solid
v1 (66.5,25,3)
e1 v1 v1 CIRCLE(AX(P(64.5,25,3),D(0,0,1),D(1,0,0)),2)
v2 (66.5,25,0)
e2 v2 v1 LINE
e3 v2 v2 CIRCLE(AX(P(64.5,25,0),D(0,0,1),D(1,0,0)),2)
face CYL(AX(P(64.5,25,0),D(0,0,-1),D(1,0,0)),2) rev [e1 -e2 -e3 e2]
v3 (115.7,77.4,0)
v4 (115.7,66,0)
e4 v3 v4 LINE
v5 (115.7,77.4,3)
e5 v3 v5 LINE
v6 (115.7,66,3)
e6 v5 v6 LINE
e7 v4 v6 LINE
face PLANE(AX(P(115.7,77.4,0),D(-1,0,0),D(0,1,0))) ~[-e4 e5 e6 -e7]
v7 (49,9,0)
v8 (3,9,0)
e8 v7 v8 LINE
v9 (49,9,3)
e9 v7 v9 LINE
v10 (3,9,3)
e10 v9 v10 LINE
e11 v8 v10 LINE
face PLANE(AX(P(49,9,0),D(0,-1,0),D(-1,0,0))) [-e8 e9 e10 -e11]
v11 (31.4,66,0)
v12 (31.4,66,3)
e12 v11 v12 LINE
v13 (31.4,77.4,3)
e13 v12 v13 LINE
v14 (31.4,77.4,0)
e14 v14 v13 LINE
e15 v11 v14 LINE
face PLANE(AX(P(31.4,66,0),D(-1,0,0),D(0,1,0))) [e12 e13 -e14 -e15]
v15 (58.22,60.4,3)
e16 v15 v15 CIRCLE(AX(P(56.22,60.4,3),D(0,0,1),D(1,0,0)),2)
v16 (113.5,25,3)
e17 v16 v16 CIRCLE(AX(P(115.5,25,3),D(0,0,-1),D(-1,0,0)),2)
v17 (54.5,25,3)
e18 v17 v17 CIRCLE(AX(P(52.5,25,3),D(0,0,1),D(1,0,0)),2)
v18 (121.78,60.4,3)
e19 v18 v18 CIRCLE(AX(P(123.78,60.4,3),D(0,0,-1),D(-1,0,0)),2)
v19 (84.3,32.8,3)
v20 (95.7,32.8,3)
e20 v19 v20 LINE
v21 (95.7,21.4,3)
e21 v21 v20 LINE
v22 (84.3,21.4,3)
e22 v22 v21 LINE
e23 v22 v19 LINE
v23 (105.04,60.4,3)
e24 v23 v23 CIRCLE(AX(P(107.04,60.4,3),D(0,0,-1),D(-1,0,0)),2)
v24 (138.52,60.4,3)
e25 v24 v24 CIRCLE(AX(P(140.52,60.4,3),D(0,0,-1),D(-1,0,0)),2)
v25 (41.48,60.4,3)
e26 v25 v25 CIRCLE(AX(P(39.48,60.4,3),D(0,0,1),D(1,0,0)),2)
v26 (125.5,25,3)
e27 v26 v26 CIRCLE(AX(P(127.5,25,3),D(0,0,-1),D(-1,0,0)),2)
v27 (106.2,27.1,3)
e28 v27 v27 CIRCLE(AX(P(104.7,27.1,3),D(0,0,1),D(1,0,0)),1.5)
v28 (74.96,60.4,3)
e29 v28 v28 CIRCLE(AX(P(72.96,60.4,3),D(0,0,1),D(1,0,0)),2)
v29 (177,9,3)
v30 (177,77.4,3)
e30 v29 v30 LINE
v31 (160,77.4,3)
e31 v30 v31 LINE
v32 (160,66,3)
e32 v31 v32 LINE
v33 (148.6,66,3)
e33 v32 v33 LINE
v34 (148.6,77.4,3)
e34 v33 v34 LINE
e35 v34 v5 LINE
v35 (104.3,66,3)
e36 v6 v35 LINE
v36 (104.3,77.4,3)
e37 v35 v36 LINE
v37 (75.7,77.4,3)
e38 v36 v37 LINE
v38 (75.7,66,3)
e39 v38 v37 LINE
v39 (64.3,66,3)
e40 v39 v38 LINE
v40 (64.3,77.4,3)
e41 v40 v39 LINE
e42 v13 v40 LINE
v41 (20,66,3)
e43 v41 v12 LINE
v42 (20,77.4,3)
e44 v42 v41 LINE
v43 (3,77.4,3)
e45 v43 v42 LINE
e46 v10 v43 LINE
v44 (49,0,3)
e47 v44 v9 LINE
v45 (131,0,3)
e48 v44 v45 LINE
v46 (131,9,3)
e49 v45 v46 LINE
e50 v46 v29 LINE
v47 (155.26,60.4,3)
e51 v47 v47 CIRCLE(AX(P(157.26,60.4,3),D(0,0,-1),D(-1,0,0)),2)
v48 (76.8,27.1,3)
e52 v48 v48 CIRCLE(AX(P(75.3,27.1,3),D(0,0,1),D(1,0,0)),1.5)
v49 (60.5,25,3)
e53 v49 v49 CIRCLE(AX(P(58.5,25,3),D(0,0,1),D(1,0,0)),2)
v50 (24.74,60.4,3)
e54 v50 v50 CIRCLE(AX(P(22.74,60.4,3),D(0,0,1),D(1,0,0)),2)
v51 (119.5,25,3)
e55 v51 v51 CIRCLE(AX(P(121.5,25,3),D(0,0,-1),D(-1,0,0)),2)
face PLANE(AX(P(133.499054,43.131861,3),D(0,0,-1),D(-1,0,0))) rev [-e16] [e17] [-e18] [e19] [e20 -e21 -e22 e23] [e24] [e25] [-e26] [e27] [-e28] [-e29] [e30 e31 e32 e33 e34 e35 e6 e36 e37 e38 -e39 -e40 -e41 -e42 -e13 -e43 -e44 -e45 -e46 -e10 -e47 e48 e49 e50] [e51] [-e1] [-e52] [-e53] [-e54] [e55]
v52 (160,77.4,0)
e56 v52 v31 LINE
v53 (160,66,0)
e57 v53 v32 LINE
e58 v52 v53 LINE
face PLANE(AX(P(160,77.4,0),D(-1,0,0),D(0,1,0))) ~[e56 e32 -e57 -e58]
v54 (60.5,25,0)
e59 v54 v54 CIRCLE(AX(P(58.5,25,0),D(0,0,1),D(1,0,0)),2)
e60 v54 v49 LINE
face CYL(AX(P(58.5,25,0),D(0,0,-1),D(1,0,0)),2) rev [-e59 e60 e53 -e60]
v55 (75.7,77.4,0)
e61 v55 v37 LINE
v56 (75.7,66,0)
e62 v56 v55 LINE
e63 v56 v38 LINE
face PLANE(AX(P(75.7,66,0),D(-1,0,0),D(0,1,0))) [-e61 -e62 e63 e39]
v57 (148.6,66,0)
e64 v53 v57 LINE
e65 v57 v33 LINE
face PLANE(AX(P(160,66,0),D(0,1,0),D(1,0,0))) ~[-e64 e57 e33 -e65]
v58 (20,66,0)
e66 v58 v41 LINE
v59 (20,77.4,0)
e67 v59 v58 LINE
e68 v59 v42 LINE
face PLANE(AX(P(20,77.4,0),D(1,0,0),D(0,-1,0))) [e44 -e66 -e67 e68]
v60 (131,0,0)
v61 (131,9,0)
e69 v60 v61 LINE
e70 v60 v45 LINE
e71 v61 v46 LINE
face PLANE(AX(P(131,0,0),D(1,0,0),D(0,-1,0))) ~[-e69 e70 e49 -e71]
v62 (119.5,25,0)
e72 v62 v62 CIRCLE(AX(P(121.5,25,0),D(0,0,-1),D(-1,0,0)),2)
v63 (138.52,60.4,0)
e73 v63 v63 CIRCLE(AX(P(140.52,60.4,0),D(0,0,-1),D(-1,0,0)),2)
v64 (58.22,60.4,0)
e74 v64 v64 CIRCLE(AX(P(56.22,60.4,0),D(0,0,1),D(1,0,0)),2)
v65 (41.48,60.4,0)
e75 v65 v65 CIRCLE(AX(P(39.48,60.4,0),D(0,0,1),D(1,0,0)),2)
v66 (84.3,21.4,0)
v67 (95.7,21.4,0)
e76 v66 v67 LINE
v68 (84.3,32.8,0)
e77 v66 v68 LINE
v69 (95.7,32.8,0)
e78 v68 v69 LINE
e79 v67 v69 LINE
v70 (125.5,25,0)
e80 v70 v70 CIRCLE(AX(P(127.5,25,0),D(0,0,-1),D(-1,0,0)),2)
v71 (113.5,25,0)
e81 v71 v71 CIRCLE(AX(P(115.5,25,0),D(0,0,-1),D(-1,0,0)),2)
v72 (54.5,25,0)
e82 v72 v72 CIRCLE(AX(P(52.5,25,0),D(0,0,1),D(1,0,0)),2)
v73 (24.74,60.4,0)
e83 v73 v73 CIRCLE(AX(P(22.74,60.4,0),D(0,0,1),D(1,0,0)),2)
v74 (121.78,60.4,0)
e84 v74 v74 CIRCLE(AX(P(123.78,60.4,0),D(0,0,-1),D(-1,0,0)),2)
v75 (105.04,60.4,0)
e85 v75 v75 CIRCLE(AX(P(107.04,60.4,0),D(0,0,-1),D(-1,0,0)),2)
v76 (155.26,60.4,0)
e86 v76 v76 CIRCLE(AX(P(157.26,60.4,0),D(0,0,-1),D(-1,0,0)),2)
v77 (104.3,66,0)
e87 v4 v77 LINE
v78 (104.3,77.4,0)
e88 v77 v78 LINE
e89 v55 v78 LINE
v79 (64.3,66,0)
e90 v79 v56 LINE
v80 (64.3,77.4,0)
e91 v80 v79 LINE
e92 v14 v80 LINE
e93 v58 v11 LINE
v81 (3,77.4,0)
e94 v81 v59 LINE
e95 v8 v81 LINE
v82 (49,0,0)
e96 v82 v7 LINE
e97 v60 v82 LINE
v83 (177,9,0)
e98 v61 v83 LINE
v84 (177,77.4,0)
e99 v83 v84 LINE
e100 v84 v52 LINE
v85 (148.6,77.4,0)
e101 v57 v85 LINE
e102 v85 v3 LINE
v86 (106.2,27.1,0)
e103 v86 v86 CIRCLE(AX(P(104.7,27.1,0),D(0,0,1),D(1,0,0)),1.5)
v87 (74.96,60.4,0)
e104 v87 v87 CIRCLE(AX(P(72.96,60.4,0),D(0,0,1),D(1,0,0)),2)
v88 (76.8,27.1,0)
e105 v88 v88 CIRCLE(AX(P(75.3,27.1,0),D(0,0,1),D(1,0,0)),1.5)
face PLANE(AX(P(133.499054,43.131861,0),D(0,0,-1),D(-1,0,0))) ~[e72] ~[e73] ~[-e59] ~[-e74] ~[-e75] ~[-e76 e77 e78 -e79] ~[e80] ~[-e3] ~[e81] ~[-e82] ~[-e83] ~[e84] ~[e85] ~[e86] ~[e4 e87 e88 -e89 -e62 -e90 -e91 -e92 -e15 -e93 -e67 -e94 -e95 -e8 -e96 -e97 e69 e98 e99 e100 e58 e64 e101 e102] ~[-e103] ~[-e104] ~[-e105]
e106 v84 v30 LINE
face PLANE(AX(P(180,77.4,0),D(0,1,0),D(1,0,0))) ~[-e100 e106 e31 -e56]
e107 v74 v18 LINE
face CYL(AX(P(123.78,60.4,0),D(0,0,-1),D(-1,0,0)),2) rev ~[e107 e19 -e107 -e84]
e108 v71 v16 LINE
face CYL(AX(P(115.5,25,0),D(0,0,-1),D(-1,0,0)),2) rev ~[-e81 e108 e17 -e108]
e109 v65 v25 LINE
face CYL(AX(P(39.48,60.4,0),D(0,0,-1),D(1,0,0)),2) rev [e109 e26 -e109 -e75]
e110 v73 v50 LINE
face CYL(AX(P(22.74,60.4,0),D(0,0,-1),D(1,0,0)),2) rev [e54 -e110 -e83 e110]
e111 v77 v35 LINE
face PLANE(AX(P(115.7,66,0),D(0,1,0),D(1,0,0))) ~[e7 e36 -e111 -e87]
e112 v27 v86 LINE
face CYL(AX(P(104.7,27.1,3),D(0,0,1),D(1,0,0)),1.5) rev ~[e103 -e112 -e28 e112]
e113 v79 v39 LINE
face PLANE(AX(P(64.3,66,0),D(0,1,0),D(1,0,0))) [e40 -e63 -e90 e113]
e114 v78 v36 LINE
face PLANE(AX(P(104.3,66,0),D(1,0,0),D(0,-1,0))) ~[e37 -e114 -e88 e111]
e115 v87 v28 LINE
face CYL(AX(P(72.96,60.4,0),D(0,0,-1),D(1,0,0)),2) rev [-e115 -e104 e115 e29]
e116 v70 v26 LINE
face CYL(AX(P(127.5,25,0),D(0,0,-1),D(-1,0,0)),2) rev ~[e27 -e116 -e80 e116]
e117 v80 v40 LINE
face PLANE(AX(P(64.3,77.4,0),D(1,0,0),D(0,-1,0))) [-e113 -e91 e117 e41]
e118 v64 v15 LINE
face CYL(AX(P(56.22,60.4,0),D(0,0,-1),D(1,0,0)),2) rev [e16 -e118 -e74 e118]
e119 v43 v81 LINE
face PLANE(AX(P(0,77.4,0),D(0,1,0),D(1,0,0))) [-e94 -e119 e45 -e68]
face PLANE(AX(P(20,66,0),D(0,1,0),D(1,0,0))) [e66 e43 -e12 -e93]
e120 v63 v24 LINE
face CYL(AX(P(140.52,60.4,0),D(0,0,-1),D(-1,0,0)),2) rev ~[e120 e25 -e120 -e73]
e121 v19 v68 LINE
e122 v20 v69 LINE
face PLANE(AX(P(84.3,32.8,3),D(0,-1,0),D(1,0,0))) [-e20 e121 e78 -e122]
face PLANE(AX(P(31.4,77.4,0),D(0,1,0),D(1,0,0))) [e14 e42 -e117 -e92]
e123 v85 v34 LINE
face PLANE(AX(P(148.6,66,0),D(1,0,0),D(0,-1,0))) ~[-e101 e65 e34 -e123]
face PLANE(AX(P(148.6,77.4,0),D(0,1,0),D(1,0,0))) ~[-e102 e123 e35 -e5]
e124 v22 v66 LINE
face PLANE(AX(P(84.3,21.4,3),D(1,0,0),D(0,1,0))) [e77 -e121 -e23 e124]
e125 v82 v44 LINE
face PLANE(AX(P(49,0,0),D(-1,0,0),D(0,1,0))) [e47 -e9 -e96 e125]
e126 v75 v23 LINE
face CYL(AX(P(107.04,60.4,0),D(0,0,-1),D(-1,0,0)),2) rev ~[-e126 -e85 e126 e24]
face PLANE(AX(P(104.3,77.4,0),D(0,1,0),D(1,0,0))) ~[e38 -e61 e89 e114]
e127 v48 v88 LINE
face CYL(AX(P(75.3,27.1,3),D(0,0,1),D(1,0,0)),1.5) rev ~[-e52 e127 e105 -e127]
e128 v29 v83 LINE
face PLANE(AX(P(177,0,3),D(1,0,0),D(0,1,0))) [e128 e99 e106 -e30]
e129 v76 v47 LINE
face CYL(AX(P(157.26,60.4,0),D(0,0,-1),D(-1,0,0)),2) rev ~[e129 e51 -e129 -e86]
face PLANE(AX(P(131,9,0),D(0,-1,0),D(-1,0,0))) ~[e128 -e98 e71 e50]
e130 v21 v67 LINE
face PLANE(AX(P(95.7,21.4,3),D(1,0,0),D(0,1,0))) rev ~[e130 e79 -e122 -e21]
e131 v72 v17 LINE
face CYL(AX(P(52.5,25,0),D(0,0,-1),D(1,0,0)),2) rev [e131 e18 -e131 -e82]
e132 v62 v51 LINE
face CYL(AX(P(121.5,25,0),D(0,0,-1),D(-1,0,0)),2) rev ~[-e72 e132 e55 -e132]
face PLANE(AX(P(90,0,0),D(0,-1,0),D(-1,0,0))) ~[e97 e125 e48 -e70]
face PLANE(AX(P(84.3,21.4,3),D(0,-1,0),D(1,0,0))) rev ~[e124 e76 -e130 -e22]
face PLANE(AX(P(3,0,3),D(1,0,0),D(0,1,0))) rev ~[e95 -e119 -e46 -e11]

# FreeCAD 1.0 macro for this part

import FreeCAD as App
import Part
import Sketcher
from FreeCAD import Vector
Q = App.Units.Quantity

doc = App.newDocument("Part")
body = doc.addObject("PartDesign::Body", "Body")

sketch1 = body.newObject("Sketcher::SketchObject", "Sketch")
sketch1.AttachmentSupport = (doc.getObject("XY_Plane"), [""])
sketch1.MapMode = "FlatFace"
sketch1.addGeometry([
    Part.LineSegment(Vector(20, 77.4, 0), Vector(0, 77.4, 0)),
    Part.LineSegment(Vector(0, 77.4, 0), Vector(0, 9, 0)),
    Part.LineSegment(Vector(0, 9, 0), Vector(49, 9, 0)),
    Part.LineSegment(Vector(49, 9, 0), Vector(49, 0, 0)),
    Part.LineSegment(Vector(49, 0, 0), Vector(90, 0, 0)),
    Part.LineSegment(Vector(90, 0, 0), Vector(90, 77.4, 0)),
    Part.LineSegment(Vector(90, 77.4, 0), Vector(75.7, 77.4, 0)),
    Part.LineSegment(Vector(75.7, 77.4, 0), Vector(75.7, 66, 0)),
    Part.LineSegment(Vector(75.7, 66, 0), Vector(64.3, 66, 0)),
    Part.LineSegment(Vector(64.3, 66, 0), Vector(64.3, 77.4, 0)),
    Part.LineSegment(Vector(64.3, 77.4, 0), Vector(31.4, 77.4, 0)),
    Part.LineSegment(Vector(31.4, 77.4, 0), Vector(31.4, 66, 0)),
    Part.LineSegment(Vector(31.4, 66, 0), Vector(20, 66, 0)),
    Part.LineSegment(Vector(20, 66, 0), Vector(20, 77.4, 0)),
    Part.Circle(Vector(64.5, 25, 0), Vector(0, 0, 1), 2),
    Part.Circle(Vector(58.5, 25, 0), Vector(0, 0, 1), 2),
    Part.Circle(Vector(52.5, 25, 0), Vector(0, 0, 1), 2),
    Part.Circle(Vector(73, 60.4, 0), Vector(0, 0, 1), 2),
    Part.Circle(Vector(56.2, 60.4, 0), Vector(0, 0, 1), 2),
    Part.Circle(Vector(39.5, 60.4, 0), Vector(0, 0, 1), 2),
    Part.Circle(Vector(22.7, 60.4, 0), Vector(0, 0, 1), 2),
], False)
sketch1.addConstraint([
    Sketcher.Constraint("Coincident", 0, 2, 1, 1),
    Sketcher.Constraint("Coincident", 1, 2, 2, 1),
    Sketcher.Constraint("Coincident", 2, 2, 3, 1),
    Sketcher.Constraint("Coincident", 3, 2, 4, 1),
    Sketcher.Constraint("Coincident", 4, 2, 5, 1),
    Sketcher.Constraint("Coincident", 5, 2, 6, 1),
    Sketcher.Constraint("Coincident", 6, 2, 7, 1),
    Sketcher.Constraint("Coincident", 7, 2, 8, 1),
    Sketcher.Constraint("Coincident", 8, 2, 9, 1),
    Sketcher.Constraint("Coincident", 9, 2, 10, 1),
    Sketcher.Constraint("Coincident", 10, 2, 11, 1),
    Sketcher.Constraint("Coincident", 11, 2, 12, 1),
    Sketcher.Constraint("Coincident", 12, 2, 13, 1),
    Sketcher.Constraint("Coincident", 13, 2, 0, 1),
    Sketcher.Constraint("Horizontal", 0),
    Sketcher.Constraint("Vertical", 1),
    Sketcher.Constraint("Horizontal", 2),
    Sketcher.Constraint("Vertical", 3),
    Sketcher.Constraint("Horizontal", 4),
    Sketcher.Constraint("Vertical", 5),
    Sketcher.Constraint("Horizontal", 6),
    Sketcher.Constraint("Vertical", 7),
    Sketcher.Constraint("Horizontal", 8),
    Sketcher.Constraint("Vertical", 9),
    Sketcher.Constraint("Horizontal", 10),
    Sketcher.Constraint("Vertical", 11),
    Sketcher.Constraint("Horizontal", 12),
    Sketcher.Constraint("Vertical", 13),
    Sketcher.Constraint("Equal", 14, 15),
    Sketcher.Constraint("Equal", 15, 16),
    Sketcher.Constraint("Equal", 16, 17),
    Sketcher.Constraint("Equal", 17, 18),
    Sketcher.Constraint("Equal", 18, 19),
    Sketcher.Constraint("Equal", 19, 20),
    Sketcher.Constraint("PointOnObject", 0, 2, -2),
    Sketcher.Constraint("PointOnObject", 3, 2, -1),
    Sketcher.Constraint("Horizontal", 14, 3, 15, 3),
    Sketcher.Constraint("Horizontal", 15, 3, 16, 3),
    Sketcher.Constraint("Horizontal", 17, 3, 18, 3),
    Sketcher.Constraint("Horizontal", 18, 3, 19, 3),
    Sketcher.Constraint("Horizontal", 19, 3, 20, 3),
    Sketcher.Constraint("Horizontal", 0, 2, 5, 2),
    Sketcher.Constraint("Horizontal", 6, 2, 9, 2),
    Sketcher.Constraint("Horizontal", 8, 2, 11, 2),
    Sketcher.Constraint("Equal", 8, 12),
    Sketcher.Constraint("Equal", 12, 7),
    Sketcher.Constraint("Diameter", 14, Q("4 mm")),
    Sketcher.Constraint("DistanceX", 0, 2, 0, 1, Q("20 mm")),
    Sketcher.Constraint("DistanceX", 2, 1, 2, 2, Q("49 mm")),
    Sketcher.Constraint("DistanceX", 4, 1, 4, 2, Q("41 mm")),
    Sketcher.Constraint("DistanceY", 3, 2, 3, 1, Q("9 mm")),
    Sketcher.Constraint("DistanceX", 6, 2, 6, 1, Q("14.3 mm")),
    Sketcher.Constraint("DistanceX", 8, 2, 8, 1, Q("11.4 mm")),
    Sketcher.Constraint("DistanceY", 1, 2, 1, 1, Q("68.4 mm")),
    Sketcher.Constraint("DistanceY", -1, 1, 14, 3, Q("25 mm")),
    Sketcher.Constraint("DistanceX", 15, 3, 14, 3, Q("6 mm")),
    Sketcher.Constraint("DistanceX", 16, 3, 15, 3, Q("6 mm")),
    Sketcher.Constraint("DistanceY", 20, 3, 0, 2, Q("17 mm")),
    Sketcher.Constraint("DistanceX", -1, 1, 14, 3, Q("64.5 mm")),
    Sketcher.Constraint("DistanceX", -1, 1, 17, 3, Q("72.96 mm")),
    Sketcher.Constraint("DistanceX", -1, 1, 18, 3, Q("56.22 mm")),
    Sketcher.Constraint("DistanceX", -1, 1, 19, 3, Q("39.48 mm")),
    Sketcher.Constraint("DistanceX", -1, 1, 20, 3, Q("22.74 mm")),
])
pad1 = body.newObject("PartDesign::Pad", "Pad")
pad1.Profile = sketch1
pad1.Length = 3
doc.recompute()

datumplane = body.newObject("PartDesign::Plane", "DatumPlane")
datumplane.AttachmentSupport = (doc.getObject("YZ_Plane"), [""])
datumplane.MapMode = "FlatFace"
datumplane.AttachmentOffset = App.Placement(Vector(0, 0, 90), App.Rotation())
mirrored = body.newObject("PartDesign::Mirrored", "Mirrored")
mirrored.Originals = [pad1]
mirrored.MirrorPlane = (datumplane, [""])
body.Tip = mirrored

sketch2 = body.newObject("Sketcher::SketchObject", "Sketch001")
sketch2.AttachmentSupport = (doc.getObject("XY_Plane"), [""])
sketch2.MapMode = "FlatFace"
sketch2.AttachmentOffset = App.Placement(Vector(0, 0, 3), App.Rotation())
sketch2.addGeometry([
    Part.Circle(Vector(104.7, 27.1, 0), Vector(0, 0, 1), 1.5),
    Part.Circle(Vector(75.3, 27.1, 0), Vector(0, 0, 1), 1.5),
    Part.LineSegment(Vector(0, 90.1, 0), Vector(0, 0, 0)),
    Part.LineSegment(Vector(0, 0, 0), Vector(3, 0, 0)),
    Part.LineSegment(Vector(3, 0, 0), Vector(3, 90.1, 0)),
    Part.LineSegment(Vector(3, 90.1, 0), Vector(0, 90.1, 0)),
    Part.LineSegment(Vector(177, 90.9, 0), Vector(177, 0, 0)),
    Part.LineSegment(Vector(177, 0, 0), Vector(180, 0, 0)),
    Part.LineSegment(Vector(180, 0, 0), Vector(180, 90.9, 0)),
    Part.LineSegment(Vector(180, 90.9, 0), Vector(177, 90.9, 0)),
    Part.LineSegment(Vector(84.3, 32.8, 0), Vector(84.3, 21.4, 0)),
    Part.LineSegment(Vector(84.3, 21.4, 0), Vector(95.7, 21.4, 0)),
    Part.LineSegment(Vector(95.7, 21.4, 0), Vector(95.7, 32.8, 0)),
    Part.LineSegment(Vector(95.7, 32.8, 0), Vector(84.3, 32.8, 0)),
], False)
sketch2.addConstraint([
    Sketcher.Constraint("Coincident", 2, 2, 3, 1),
    Sketcher.Constraint("Coincident", 3, 2, 4, 1),
    Sketcher.Constraint("Coincident", 4, 2, 5, 1),
    Sketcher.Constraint("Coincident", 5, 2, 2, 1),
    Sketcher.Constraint("Coincident", 6, 2, 7, 1),
    Sketcher.Constraint("Coincident", 7, 2, 8, 1),
    Sketcher.Constraint("Coincident", 8, 2, 9, 1),
    Sketcher.Constraint("Coincident", 9, 2, 6, 1),
    Sketcher.Constraint("Coincident", 10, 2, 11, 1),
    Sketcher.Constraint("Coincident", 11, 2, 12, 1),
    Sketcher.Constraint("Coincident", 12, 2, 13, 1),
    Sketcher.Constraint("Coincident", 13, 2, 10, 1),
    Sketcher.Constraint("Vertical", 2),
    Sketcher.Constraint("Horizontal", 3),
    Sketcher.Constraint("Vertical", 4),
    Sketcher.Constraint("Horizontal", 5),
    Sketcher.Constraint("Vertical", 6),
    Sketcher.Constraint("Horizontal", 7),
    Sketcher.Constraint("Vertical", 8),
    Sketcher.Constraint("Horizontal", 9),
    Sketcher.Constraint("Vertical", 10),
    Sketcher.Constraint("Horizontal", 11),
    Sketcher.Constraint("Vertical", 12),
    Sketcher.Constraint("Horizontal", 13),
    Sketcher.Constraint("Coincident", 2, 2, -1, 1),
    Sketcher.Constraint("Equal", 0, 1),
    Sketcher.Constraint("PointOnObject", 6, 2, -1),
    Sketcher.Constraint("Horizontal", 0, 3, 1, 3),
    Sketcher.Constraint("Equal", 5, 7),
    Sketcher.Constraint("Equal", 13, 10),
    Sketcher.Constraint("Diameter", 0, Q("3 mm")),
    Sketcher.Constraint("DistanceX", 3, 1, 3, 2, Q("3 mm")),
    Sketcher.Constraint("DistanceX", 11, 1, 11, 2, Q("11.4 mm")),
    Sketcher.Constraint("DistanceX", -1, 1, 6, 2, Q("177 mm")),
    Sketcher.Constraint("DistanceX", 1, 3, 10, 2, Q("9 mm")),
    Sketcher.Constraint("DistanceX", 11, 2, 0, 3, Q("9 mm")),
    Sketcher.Constraint("DistanceX", -1, 1, 0, 3, Q("104.7 mm")),
    Sketcher.Constraint("DistanceY", -1, 1, 0, 3, Q("27.1 mm")),
    Sketcher.Constraint("DistanceY", -1, 1, 10, 2, Q("21.4 mm")),
    Sketcher.Constraint("DistanceY", 6, 2, 6, 1, Q("90.92247 mm")),
    Sketcher.Constraint("DistanceY", 2, 2, 2, 1, Q("90.076996 mm")),
])
pocket1 = body.newObject("PartDesign::Pocket", "Pocket")
pocket1.Profile = sketch2
pocket1.Type = "ThroughAll"

doc.recompute()
